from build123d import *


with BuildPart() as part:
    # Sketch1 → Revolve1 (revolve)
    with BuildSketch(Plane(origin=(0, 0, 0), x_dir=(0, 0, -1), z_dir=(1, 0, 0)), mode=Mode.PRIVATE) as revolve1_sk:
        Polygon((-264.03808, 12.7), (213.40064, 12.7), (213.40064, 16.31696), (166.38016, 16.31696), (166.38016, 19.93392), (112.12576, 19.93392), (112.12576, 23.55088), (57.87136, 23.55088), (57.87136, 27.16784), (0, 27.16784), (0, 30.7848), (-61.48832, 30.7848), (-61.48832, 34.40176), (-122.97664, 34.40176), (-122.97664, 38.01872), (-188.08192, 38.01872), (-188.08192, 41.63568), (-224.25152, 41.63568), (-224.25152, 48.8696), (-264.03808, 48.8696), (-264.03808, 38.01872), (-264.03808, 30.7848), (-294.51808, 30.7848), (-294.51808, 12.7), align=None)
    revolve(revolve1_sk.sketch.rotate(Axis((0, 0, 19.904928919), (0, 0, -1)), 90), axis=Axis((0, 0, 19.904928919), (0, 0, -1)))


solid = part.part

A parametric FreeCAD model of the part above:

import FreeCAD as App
import Part
import Sketcher

V = App.Vector
Q = App.Units.Quantity


def add_polygon(sketch, points):
    """Adds a closed chain of lines whose ends are joined by coincident constraints."""
    first, n = sketch.GeometryCount, len(points)
    for a, b in zip(points, points[1:] + points[:1]):
        sketch.addGeometry(Part.LineSegment(App.Vector(*a, 0), App.Vector(*b, 0)), False)
    for i in range(n):
        sketch.addConstraint(Sketcher.Constraint("Coincident", first + i, 2, first + (i + 1) % n, 1))

doc = App.newDocument("Part")
body = doc.addObject("PartDesign::Body", "Body")

# Sketch on YZ plane
sketch1 = body.newObject("Sketcher::SketchObject", "Sketch")
sketch1.AttachmentSupport = (doc.getObject("YZ_Plane"), [""])
sketch1.MapMode = "FlatFace"
add_polygon(sketch1, [(12.7, -213.40064), (16.31696, -213.40064), (16.31696, -166.38016), (19.93392, -166.38016), (19.93392, -112.12576), (23.55088, -112.12576), (23.55088, -57.87136), (27.16784, -57.87136), (27.16784, 0), (30.7848, 0), (30.7848, 61.48832), (34.40176, 61.48832), (34.40176, 122.97664), (38.01872, 122.97664), (38.01872, 188.08192), (41.63568, 188.08192), (41.63568, 224.25152), (48.8696, 224.25152), (48.8696, 264.03808), (30.7848, 264.03808), (30.7848, 294.51808), (12.7, 294.51808)])  # lines 0-21
sketch1.addConstraint([
    Sketcher.Constraint("Horizontal", 0),
    Sketcher.Constraint("Vertical", 1),
    Sketcher.Constraint("Horizontal", 2),
    Sketcher.Constraint("Vertical", 3),
    Sketcher.Constraint("Horizontal", 4),
    Sketcher.Constraint("Vertical", 5),
    Sketcher.Constraint("Horizontal", 6),
    Sketcher.Constraint("Vertical", 7),
    Sketcher.Constraint("Horizontal", 8),
    Sketcher.Constraint("Vertical", 9),
    Sketcher.Constraint("Horizontal", 10),
    Sketcher.Constraint("Vertical", 11),
    Sketcher.Constraint("Horizontal", 12),
    Sketcher.Constraint("Vertical", 13),
    Sketcher.Constraint("Horizontal", 14),
    Sketcher.Constraint("Vertical", 15),
    Sketcher.Constraint("Horizontal", 16),
    Sketcher.Constraint("Vertical", 17),
    Sketcher.Constraint("Horizontal", 18),
    Sketcher.Constraint("Vertical", 19),
    Sketcher.Constraint("Horizontal", 20),
    Sketcher.Constraint("Vertical", 21),
    Sketcher.Constraint("PointOnObject", 7, 2, -1),
    Sketcher.Constraint("Vertical", 9, 2, 18, 2),
    Sketcher.Constraint("Equal", 0, 2),
    Sketcher.Constraint("Equal", 2, 4),
    Sketcher.Constraint("Equal", 4, 6),
    Sketcher.Constraint("Equal", 6, 8),
    Sketcher.Constraint("Equal", 8, 10),
    Sketcher.Constraint("Equal", 10, 12),
    Sketcher.Constraint("Equal", 12, 14),
    Sketcher.Constraint("Equal", 18, 20),
    Sketcher.Constraint("Equal", 3, 5),
    Sketcher.Constraint("Equal", 9, 11),
    Sketcher.Constraint("DistanceY", 19, 1, 19, 2, Q("1.2 in")),
    Sketcher.Constraint("DistanceX", -1, 1, 20, 2, Q("0.5 in")),
    Sketcher.Constraint("DistanceX", 18, 2, 18, 1, Q("0.712 in")),
    Sketcher.Constraint("DistanceY", 3, 1, 3, 2, Q("2.136 in")),
    Sketcher.Constraint("DistanceY", 15, 1, 15, 2, Q("1.424 in")),
    Sketcher.Constraint("DistanceY", 6, 2, 11, 2, Q("7.12 in")),
    Sketcher.Constraint("DistanceY", 1, 1, 1, 2, Q("1.8512 in")),
    Sketcher.Constraint("DistanceY", 7, 1, 7, 2, Q("2.2784 in")),
    Sketcher.Constraint("DistanceY", 13, 1, 13, 2, Q("2.5632 in")),
    Sketcher.Constraint("DistanceY", 17, 1, 17, 2, Q("1.5664 in")),
])
revolution = body.newObject("PartDesign::Revolution", "Revolution")
revolution.Profile = sketch1
revolution.ReferenceAxis = (sketch1, ["V_Axis"])
revolution.Angle = 360

doc.recompute()
